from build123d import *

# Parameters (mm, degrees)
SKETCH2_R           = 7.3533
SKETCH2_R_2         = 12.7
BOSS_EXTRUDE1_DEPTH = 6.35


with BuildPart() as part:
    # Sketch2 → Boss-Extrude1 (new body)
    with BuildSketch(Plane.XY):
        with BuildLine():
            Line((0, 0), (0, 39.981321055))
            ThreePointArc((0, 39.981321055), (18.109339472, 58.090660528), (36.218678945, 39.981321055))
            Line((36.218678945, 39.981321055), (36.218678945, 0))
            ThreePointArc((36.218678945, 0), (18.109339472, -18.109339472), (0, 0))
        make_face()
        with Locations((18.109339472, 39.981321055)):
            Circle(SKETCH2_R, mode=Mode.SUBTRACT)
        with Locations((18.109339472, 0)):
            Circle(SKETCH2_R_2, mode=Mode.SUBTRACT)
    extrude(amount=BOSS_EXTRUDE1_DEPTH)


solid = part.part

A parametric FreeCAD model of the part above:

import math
import FreeCAD as App
import Part
import Sketcher
from FreeCAD import Vector
Q = App.Units.Quantity

doc = App.newDocument("Part")
body = doc.addObject("PartDesign::Body", "Body")

# Sketch on XY plane
sketch1 = body.newObject("Sketcher::SketchObject", "Sketch")
sketch1.AttachmentSupport = (doc.getObject("XY_Plane"), [""])
sketch1.MapMode = "FlatFace"
sketch1.addGeometry(Part.LineSegment(Vector(0, 39.981321, 0), Vector(0, 0, 0)), False)
sketch1.addGeometry(Part.ArcOfCircle(Part.Circle(Vector(18.109339, 0, 0), Vector(0, 0, 1), 18.109339), math.radians(-180), math.radians(0)), False)
sketch1.addGeometry(Part.LineSegment(Vector(36.218679, 0, 0), Vector(36.218679, 39.981321, 0)), False)
sketch1.addGeometry(Part.ArcOfCircle(Part.Circle(Vector(18.109339, 39.981321, 0), Vector(0, 0, 1), 18.109339), math.radians(0), math.radians(180)), False)
sketch1.addGeometry(Part.Circle(Vector(18.109339, 0, 0), Vector(0, 0, 1), 12.7), False)
sketch1.addGeometry(Part.Circle(Vector(18.109339, 39.981321, 0), Vector(0, 0, 1), 7.3533), False)
sketch1.addConstraint(Sketcher.Constraint("Tangent", 0, 2, 1, 1))
sketch1.addConstraint(Sketcher.Constraint("Tangent", 1, 2, 2, 1))
sketch1.addConstraint(Sketcher.Constraint("Tangent", 2, 2, 3, 1))
sketch1.addConstraint(Sketcher.Constraint("Tangent", 3, 2, 0, 1))
sketch1.addConstraint(Sketcher.Constraint("Vertical", 0))
sketch1.addConstraint(Sketcher.Constraint("Vertical", 2))
sketch1.addConstraint(Sketcher.Constraint("Coincident", 0, 2, -1, 1))
sketch1.addConstraint(Sketcher.Constraint("Coincident", 4, 3, 1, 3))
sketch1.addConstraint(Sketcher.Constraint("Coincident", 5, 3, 3, 3))
sketch1.addConstraint(Sketcher.Constraint("Diameter", 4, Q("1 in")))
sketch1.addConstraint(Sketcher.Constraint("Diameter", 5, Q("0.579 in")))
sketch1.addConstraint(Sketcher.Constraint("Radius", 1, 18.109339))
sketch1.addConstraint(Sketcher.Constraint("DistanceY", 0, 2, 0, 1, 39.981321))
pad1 = body.newObject("PartDesign::Pad", "Pad")
pad1.Profile = sketch1
pad1.Length = Q("0.25 in")

doc.recompute()
